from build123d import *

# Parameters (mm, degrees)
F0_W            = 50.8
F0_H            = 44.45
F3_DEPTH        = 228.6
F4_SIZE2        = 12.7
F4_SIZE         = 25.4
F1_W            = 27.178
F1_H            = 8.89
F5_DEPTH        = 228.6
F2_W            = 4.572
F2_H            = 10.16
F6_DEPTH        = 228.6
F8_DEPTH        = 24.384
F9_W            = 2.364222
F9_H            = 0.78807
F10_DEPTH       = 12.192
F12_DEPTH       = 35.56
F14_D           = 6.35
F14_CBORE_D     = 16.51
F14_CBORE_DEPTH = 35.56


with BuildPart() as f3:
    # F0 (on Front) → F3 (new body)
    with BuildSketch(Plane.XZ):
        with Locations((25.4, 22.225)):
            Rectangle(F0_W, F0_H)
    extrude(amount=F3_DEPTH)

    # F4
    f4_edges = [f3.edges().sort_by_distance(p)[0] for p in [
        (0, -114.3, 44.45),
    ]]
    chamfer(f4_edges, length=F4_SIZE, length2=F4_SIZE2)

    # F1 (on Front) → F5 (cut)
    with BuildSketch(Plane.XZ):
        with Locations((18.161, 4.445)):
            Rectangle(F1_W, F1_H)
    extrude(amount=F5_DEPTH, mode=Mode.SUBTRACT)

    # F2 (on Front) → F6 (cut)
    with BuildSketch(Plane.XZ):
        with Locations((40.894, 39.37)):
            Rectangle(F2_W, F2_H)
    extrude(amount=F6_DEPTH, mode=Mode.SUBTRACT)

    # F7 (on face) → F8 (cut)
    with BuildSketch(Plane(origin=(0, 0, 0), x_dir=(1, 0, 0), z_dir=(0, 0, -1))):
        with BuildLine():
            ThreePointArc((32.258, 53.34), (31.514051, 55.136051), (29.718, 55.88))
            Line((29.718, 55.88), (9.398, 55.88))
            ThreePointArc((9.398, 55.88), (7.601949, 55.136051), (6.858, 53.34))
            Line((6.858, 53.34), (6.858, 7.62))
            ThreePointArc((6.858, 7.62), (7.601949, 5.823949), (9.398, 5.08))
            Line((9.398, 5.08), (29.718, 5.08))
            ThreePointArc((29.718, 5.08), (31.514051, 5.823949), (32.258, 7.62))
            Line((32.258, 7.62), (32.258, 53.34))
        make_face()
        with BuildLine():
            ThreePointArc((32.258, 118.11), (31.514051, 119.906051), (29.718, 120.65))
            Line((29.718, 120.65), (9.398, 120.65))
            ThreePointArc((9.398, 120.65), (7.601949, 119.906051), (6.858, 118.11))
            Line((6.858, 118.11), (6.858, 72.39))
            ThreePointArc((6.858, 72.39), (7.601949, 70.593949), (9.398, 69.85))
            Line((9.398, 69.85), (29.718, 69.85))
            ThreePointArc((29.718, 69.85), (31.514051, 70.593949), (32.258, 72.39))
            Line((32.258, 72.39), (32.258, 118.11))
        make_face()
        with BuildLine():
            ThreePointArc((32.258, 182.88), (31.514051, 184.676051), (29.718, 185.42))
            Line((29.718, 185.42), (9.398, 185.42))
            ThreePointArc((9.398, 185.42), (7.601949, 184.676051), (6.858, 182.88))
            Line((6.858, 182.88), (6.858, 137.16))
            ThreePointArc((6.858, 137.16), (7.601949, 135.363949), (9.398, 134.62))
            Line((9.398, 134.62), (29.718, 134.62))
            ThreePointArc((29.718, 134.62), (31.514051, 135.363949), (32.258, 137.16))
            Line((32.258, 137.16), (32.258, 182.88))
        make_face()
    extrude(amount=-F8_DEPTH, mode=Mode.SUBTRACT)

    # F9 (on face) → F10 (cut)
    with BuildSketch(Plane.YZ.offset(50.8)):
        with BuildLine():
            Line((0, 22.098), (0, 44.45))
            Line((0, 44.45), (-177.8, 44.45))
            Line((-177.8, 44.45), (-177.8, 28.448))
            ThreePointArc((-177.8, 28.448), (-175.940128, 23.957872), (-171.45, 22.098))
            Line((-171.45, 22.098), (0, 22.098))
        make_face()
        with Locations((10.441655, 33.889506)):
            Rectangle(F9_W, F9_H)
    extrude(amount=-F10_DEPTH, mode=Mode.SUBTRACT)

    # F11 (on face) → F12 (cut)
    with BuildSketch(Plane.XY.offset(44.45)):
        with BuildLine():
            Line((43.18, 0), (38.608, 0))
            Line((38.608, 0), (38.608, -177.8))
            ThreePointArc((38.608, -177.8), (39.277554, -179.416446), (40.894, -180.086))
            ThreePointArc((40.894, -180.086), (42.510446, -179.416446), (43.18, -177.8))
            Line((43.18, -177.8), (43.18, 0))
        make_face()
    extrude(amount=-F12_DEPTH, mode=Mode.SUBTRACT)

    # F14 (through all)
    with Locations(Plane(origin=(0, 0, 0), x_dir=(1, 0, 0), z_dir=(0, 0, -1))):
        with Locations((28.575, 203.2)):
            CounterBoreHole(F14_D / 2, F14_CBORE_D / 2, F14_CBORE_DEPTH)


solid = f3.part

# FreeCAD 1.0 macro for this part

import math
import FreeCAD as App
import Part
import Sketcher
from FreeCAD import Vector
Q = App.Units.Quantity


def edges_at(feature, points):
    """Names of the edges that pass closest to the given points."""
    edges = feature.Shape.Edges
    near = lambda p: min(range(len(edges)), key=lambda i: edges[i].distToShape(Part.Vertex(*p))[0])
    return sorted({f"Edge{near(p) + 1}" for p in points})


def add_polygon(sketch, points):
    """Adds a closed chain of lines whose ends are joined by coincident constraints."""
    first, n = sketch.GeometryCount, len(points)
    for a, b in zip(points, points[1:] + points[:1]):
        sketch.addGeometry(Part.LineSegment(App.Vector(*a, 0), App.Vector(*b, 0)), False)
    for i in range(n):
        sketch.addConstraint(Sketcher.Constraint("Coincident", first + i, 2, first + (i + 1) % n, 1))

doc = App.newDocument("Part")
body = doc.addObject("PartDesign::Body", "Body")

# Sketch on XZ plane
sketch1 = body.newObject("Sketcher::SketchObject", "Sketch")
sketch1.AttachmentSupport = (doc.getObject("XZ_Plane"), [""])
sketch1.MapMode = "FlatFace"
add_polygon(sketch1, [(0, 44.45), (0, 0), (50.8, 0), (50.8, 44.45)])  # lines 0-3
sketch1.addConstraint([
    Sketcher.Constraint("Vertical", 0),
    Sketcher.Constraint("Horizontal", 1),
    Sketcher.Constraint("Vertical", 2),
    Sketcher.Constraint("Horizontal", 3),
    Sketcher.Constraint("Coincident", 0, 2, -1, 1),
    Sketcher.Constraint("DistanceX", 1, 1, 1, 2, Q("2 in")),
    Sketcher.Constraint("DistanceY", 0, 2, 0, 1, Q("1.75 in")),
])
pad1 = body.newObject("PartDesign::Pad", "Pad")
pad1.Profile = sketch1
pad1.Length = Q("9 in")
doc.recompute()

chamfer = body.newObject("PartDesign::Chamfer", "Chamfer")
chamfer.Base = (pad1, edges_at(pad1, [(0, -114.3, 44.45)]))
chamfer.ChamferType = "Two distances"
chamfer.Size = Q("1 in")
chamfer.Size2 = Q("0.5 in")

# Sketch on XZ plane
sketch2 = body.newObject("Sketcher::SketchObject", "Sketch001")
sketch2.AttachmentSupport = (doc.getObject("XZ_Plane"), [""])
sketch2.MapMode = "FlatFace"
add_polygon(sketch2, [(4.572, 8.89), (4.572, 0), (31.75, 0), (31.75, 8.89)])  # lines 0-3
sketch2.addConstraint([
    Sketcher.Constraint("Vertical", 0),
    Sketcher.Constraint("Horizontal", 1),
    Sketcher.Constraint("Vertical", 2),
    Sketcher.Constraint("Horizontal", 3),
    Sketcher.Constraint("PointOnObject", 0, 2, -1),
    Sketcher.Constraint("DistanceX", 1, 1, 1, 2, Q("1.07 in")),
    Sketcher.Constraint("DistanceY", 0, 2, 0, 1, Q("0.35 in")),
    Sketcher.Constraint("DistanceX", -1, 1, 0, 2, Q("0.18 in")),
])
pocket1 = body.newObject("PartDesign::Pocket", "Pocket")
pocket1.Profile = sketch2
pocket1.Length = Q("9 in")
pocket1.Reversed = True

# Sketch on XZ plane
sketch3 = body.newObject("Sketcher::SketchObject", "Sketch002")
sketch3.AttachmentSupport = (doc.getObject("XZ_Plane"), [""])
sketch3.MapMode = "FlatFace"
add_polygon(sketch3, [(38.608, 44.45), (38.608, 34.29), (43.18, 34.29), (43.18, 44.45)])  # lines 0-3
sketch3.addConstraint([
    Sketcher.Constraint("Vertical", 0),
    Sketcher.Constraint("Horizontal", 1),
    Sketcher.Constraint("Vertical", 2),
    Sketcher.Constraint("Horizontal", 3),
    Sketcher.Constraint("DistanceY", 0, 2, 0, 1, Q("0.4 in")),
    Sketcher.Constraint("DistanceX", 1, 1, 1, 2, Q("0.18 in")),
    Sketcher.Constraint("DistanceX", -1, 1, 1, 2, Q("1.7 in")),
    Sketcher.Constraint("DistanceY", -1, 1, 0, 2, Q("1.35 in")),
])
pocket2 = body.newObject("PartDesign::Pocket", "Pocket001")
pocket2.Profile = sketch3
pocket2.Length = Q("9 in")
pocket2.Reversed = True

# Sketch on XY plane
sketch4 = body.newObject("Sketcher::SketchObject", "Sketch003")
sketch4.AttachmentSupport = (doc.getObject("XY_Plane"), [""])
sketch4.MapMode = "FlatFace"
sketch4.addGeometry([
    Part.ArcOfCircle(Part.Circle(Vector(29.717999, -53.339999, 0), Vector(0, 0, 1), 2.540001), math.radians(-89.999983), math.radians(-0.000017)),  # 0
    Part.LineSegment(Vector(29.718, -55.88, 0), Vector(9.398, -55.88, 0)),  # 1
    Part.ArcOfCircle(Part.Circle(Vector(9.398001, -53.339999, 0), Vector(0, 0, 1), 2.540001), math.radians(-179.999983), math.radians(-90.000017)),  # 2
    Part.LineSegment(Vector(6.858, -53.34, 0), Vector(6.858, -7.62, 0)),  # 3
    Part.ArcOfCircle(Part.Circle(Vector(9.398001, -7.620001, 0), Vector(0, 0, 1), 2.540001), math.radians(90.000017), math.radians(179.999983)),  # 4
    Part.LineSegment(Vector(9.398, -5.08, 0), Vector(29.718, -5.08, 0)),  # 5
    Part.ArcOfCircle(Part.Circle(Vector(29.717999, -7.620001, 0), Vector(0, 0, 1), 2.540001), math.radians(0.000017), math.radians(89.999983)),  # 6
    Part.LineSegment(Vector(32.258, -7.62, 0), Vector(32.258, -53.34, 0)),  # 7
    Part.ArcOfCircle(Part.Circle(Vector(29.717999, -118.109999, 0), Vector(0, 0, 1), 2.540001), math.radians(-89.999983), math.radians(-0.000017)),  # 8
    Part.LineSegment(Vector(29.718, -120.65, 0), Vector(9.398, -120.65, 0)),  # 9
    Part.ArcOfCircle(Part.Circle(Vector(9.398001, -118.109999, 0), Vector(0, 0, 1), 2.540001), math.radians(-179.999983), math.radians(-90.000017)),  # 10
    Part.LineSegment(Vector(6.858, -118.11, 0), Vector(6.858, -72.39, 0)),  # 11
    Part.ArcOfCircle(Part.Circle(Vector(9.398001, -72.390001, 0), Vector(0, 0, 1), 2.540001), math.radians(90.000017), math.radians(179.999983)),  # 12
    Part.LineSegment(Vector(9.398, -69.85, 0), Vector(29.718, -69.85, 0)),  # 13
    Part.ArcOfCircle(Part.Circle(Vector(29.717999, -72.390001, 0), Vector(0, 0, 1), 2.540001), math.radians(0.000017), math.radians(89.999983)),  # 14
    Part.LineSegment(Vector(32.258, -72.39, 0), Vector(32.258, -118.11, 0)),  # 15
    Part.ArcOfCircle(Part.Circle(Vector(29.717999, -182.879999, 0), Vector(0, 0, 1), 2.540001), math.radians(-89.999983), math.radians(-0.000017)),  # 16
    Part.LineSegment(Vector(29.718, -185.42, 0), Vector(9.398, -185.42, 0)),  # 17
    Part.ArcOfCircle(Part.Circle(Vector(9.398001, -182.879999, 0), Vector(0, 0, 1), 2.540001), math.radians(-179.999983), math.radians(-90.000017)),  # 18
    Part.LineSegment(Vector(6.858, -182.88, 0), Vector(6.858, -137.16, 0)),  # 19
    Part.ArcOfCircle(Part.Circle(Vector(9.398001, -137.160001, 0), Vector(0, 0, 1), 2.540001), math.radians(90.000017), math.radians(179.999983)),  # 20
    Part.LineSegment(Vector(9.398, -134.62, 0), Vector(29.718, -134.62, 0)),  # 21
    Part.ArcOfCircle(Part.Circle(Vector(29.717999, -137.160001, 0), Vector(0, 0, 1), 2.540001), math.radians(0.000017), math.radians(89.999983)),  # 22
    Part.LineSegment(Vector(32.258, -137.16, 0), Vector(32.258, -182.88, 0)),  # 23
], False)
sketch4.addConstraint([
    Sketcher.Constraint("Tangent", 0, 1, 1, 1),
    Sketcher.Constraint("Tangent", 1, 2, 2, 2),
    Sketcher.Constraint("Tangent", 2, 1, 3, 1),
    Sketcher.Constraint("Tangent", 3, 2, 4, 2),
    Sketcher.Constraint("Tangent", 4, 1, 5, 1),
    Sketcher.Constraint("Tangent", 5, 2, 6, 2),
    Sketcher.Constraint("Tangent", 6, 1, 7, 1),
    Sketcher.Constraint("Tangent", 7, 2, 0, 2),
    Sketcher.Constraint("Tangent", 8, 1, 9, 1),
    Sketcher.Constraint("Tangent", 9, 2, 10, 2),
    Sketcher.Constraint("Tangent", 10, 1, 11, 1),
    Sketcher.Constraint("Tangent", 11, 2, 12, 2),
    Sketcher.Constraint("Tangent", 12, 1, 13, 1),
    Sketcher.Constraint("Tangent", 13, 2, 14, 2),
    Sketcher.Constraint("Tangent", 14, 1, 15, 1),
    Sketcher.Constraint("Tangent", 15, 2, 8, 2),
    Sketcher.Constraint("Tangent", 16, 1, 17, 1),
    Sketcher.Constraint("Tangent", 17, 2, 18, 2),
    Sketcher.Constraint("Tangent", 18, 1, 19, 1),
    Sketcher.Constraint("Tangent", 19, 2, 20, 2),
    Sketcher.Constraint("Tangent", 20, 1, 21, 1),
    Sketcher.Constraint("Tangent", 21, 2, 22, 2),
    Sketcher.Constraint("Tangent", 22, 1, 23, 1),
    Sketcher.Constraint("Tangent", 23, 2, 16, 2),
    Sketcher.Constraint("Horizontal", 1),
    Sketcher.Constraint("Vertical", 3),
    Sketcher.Constraint("Horizontal", 5),
    Sketcher.Constraint("Vertical", 7),
    Sketcher.Constraint("Horizontal", 9),
    Sketcher.Constraint("Vertical", 11),
    Sketcher.Constraint("Horizontal", 13),
    Sketcher.Constraint("Vertical", 15),
    Sketcher.Constraint("Horizontal", 17),
    Sketcher.Constraint("Vertical", 19),
    Sketcher.Constraint("Horizontal", 21),
    Sketcher.Constraint("Vertical", 23),
    Sketcher.Constraint("Equal", 0, 2),
    Sketcher.Constraint("Equal", 2, 4),
    Sketcher.Constraint("Equal", 4, 6),
    Sketcher.Constraint("Equal", 6, 8),
    Sketcher.Constraint("Equal", 8, 10),
    Sketcher.Constraint("Equal", 10, 12),
    Sketcher.Constraint("Equal", 12, 14),
    Sketcher.Constraint("Equal", 14, 16),
    Sketcher.Constraint("Equal", 16, 18),
    Sketcher.Constraint("Equal", 18, 20),
    Sketcher.Constraint("Equal", 20, 22),
    Sketcher.Constraint("Vertical", 6, 3, 8, 3),
    Sketcher.Constraint("Vertical", 4, 3, 10, 3),
    Sketcher.Constraint("Vertical", 14, 3, 16, 3),
    Sketcher.Constraint("Vertical", 12, 3, 18, 3),
    Sketcher.Constraint("Equal", 7, 11),
    Sketcher.Constraint("Equal", 15, 19),
    Sketcher.Constraint("Radius", 0, Q("0.1 in")),
    Sketcher.Constraint("DistanceX", 1, 2, 1, 1, Q("0.8 in")),
    Sketcher.Constraint("DistanceY", 3, 1, 3, 2, Q("1.8 in")),
    Sketcher.Constraint("DistanceY", 0, 3, -1, 1, Q("2.1 in")),
    Sketcher.Constraint("DistanceY", 16, 3, -1, 1, Q("7.2 in")),
    Sketcher.Constraint("DistanceX", -1, 1, 0, 3, Q("1.17 in")),
    Sketcher.Constraint("DistanceY", 8, 3, -1, 1, Q("4.65 in")),
])
pocket3 = body.newObject("PartDesign::Pocket", "Pocket002")
pocket3.Profile = sketch4
pocket3.Length = Q("0.96 in")
pocket3.Reversed = True

# Sketch on YZ plane
sketch5 = body.newObject("Sketcher::SketchObject", "Sketch004")
sketch5.AttachmentSupport = (doc.getObject("YZ_Plane"), [""])
sketch5.MapMode = "FlatFace"
sketch5.AttachmentOffset = App.Placement(Vector(0, 0, 2 * 25.4), App.Rotation())
sketch5.addGeometry(Part.LineSegment(Vector(0, 22.098, 0), Vector(0, 44.45, 0)), False)  # 0
sketch5.addGeometry(Part.LineSegment(Vector(0, 44.45, 0), Vector(-177.8, 44.45, 0)), False)  # 1
sketch5.addGeometry(Part.LineSegment(Vector(-177.8, 44.45, 0), Vector(-177.8, 28.448, 0)), False)  # 2
sketch5.addGeometry(Part.ArcOfCircle(Part.Circle(Vector(-171.45, 28.448, 0), Vector(0, 0, 1), 6.35), math.radians(-179.999998), math.radians(-90.000002)), False)  # 3
sketch5.addGeometry(Part.LineSegment(Vector(-171.45, 22.098, 0), Vector(0, 22.098, 0)), False)  # 4
add_polygon(sketch5, [(9.259544, 34.283541), (9.259544, 33.495471), (11.623766, 33.495471), (11.623766, 34.283541)])  # lines 5-8
sketch5.addConstraint([
    Sketcher.Constraint("Coincident", 0, 2, 1, 1),
    Sketcher.Constraint("Coincident", 1, 2, 2, 1),
    Sketcher.Constraint("Tangent", 2, 2, 3, 1),
    Sketcher.Constraint("Tangent", 3, 2, 4, 1),
    Sketcher.Constraint("Coincident", 4, 2, 0, 1),
    Sketcher.Constraint("Vertical", 0),
    Sketcher.Constraint("Horizontal", 1),
    Sketcher.Constraint("Vertical", 2),
    Sketcher.Constraint("Horizontal", 4),
    Sketcher.Constraint("Vertical", 5),
    Sketcher.Constraint("Horizontal", 6),
    Sketcher.Constraint("Vertical", 7),
    Sketcher.Constraint("Horizontal", 8),
    Sketcher.Constraint("PointOnObject", 0, 2, -2),
    Sketcher.Constraint("DistanceX", 1, 2, 1, 1, Q("7 in")),
    Sketcher.Constraint("Radius", 3, Q("0.25 in")),
    Sketcher.Constraint("DistanceY", 0, 1, 0, 2, Q("0.88 in")),
    Sketcher.Constraint("DistanceY", -1, 1, 3, 3, Q("1.12 in")),
    Sketcher.Constraint("DistanceX", 6, 1, 6, 2, Q("2.364222 mm")),
    Sketcher.Constraint("DistanceY", 5, 2, 5, 1, Q("0.78807 mm")),
    Sketcher.Constraint("DistanceY", -1, 1, 5, 2, Q("33.495471 mm")),
    Sketcher.Constraint("DistanceX", -1, 1, 5, 2, Q("9.259544 mm")),
])
pocket4 = body.newObject("PartDesign::Pocket", "Pocket003")
pocket4.Profile = sketch5
pocket4.Length = Q("0.48 in")

# Sketch on XY plane
sketch6 = body.newObject("Sketcher::SketchObject", "Sketch005")
sketch6.AttachmentSupport = (doc.getObject("XY_Plane"), [""])
sketch6.MapMode = "FlatFace"
sketch6.AttachmentOffset = App.Placement(Vector(0, 0, 1.75 * 25.4), App.Rotation())
sketch6.addGeometry([
    Part.LineSegment(Vector(43.18, 0, 0), Vector(38.608, 0, 0)),  # 0
    Part.LineSegment(Vector(38.608, 0, 0), Vector(38.608, -177.8, 0)),  # 1
    Part.ArcOfCircle(Part.Circle(Vector(40.894, -177.8, 0), Vector(0, 0, 1), 2.286), math.radians(-179.999991), math.radians(-90.000009)),  # 2
    Part.ArcOfCircle(Part.Circle(Vector(40.894, -177.8, 0), Vector(0, 0, 1), 2.286), math.radians(-89.999991), math.radians(-0.000009)),  # 3
    Part.LineSegment(Vector(43.18, -177.8, 0), Vector(43.18, 0, 0)),  # 4
], False)
sketch6.addConstraint([
    Sketcher.Constraint("Coincident", 0, 2, 1, 1),
    Sketcher.Constraint("Tangent", 1, 2, 2, 1),
    Sketcher.Constraint("Tangent", 2, 2, 3, 1),
    Sketcher.Constraint("Tangent", 3, 2, 4, 1),
    Sketcher.Constraint("Coincident", 4, 2, 0, 1),
    Sketcher.Constraint("Horizontal", 0),
    Sketcher.Constraint("Vertical", 1),
    Sketcher.Constraint("Vertical", 4),
    Sketcher.Constraint("Equal", 2, 3),
    Sketcher.Constraint("PointOnObject", 0, 2, -1),
    Sketcher.Constraint("Vertical", 3, 3, 2, 2),
    Sketcher.Constraint("DistanceY", 1, 2, 1, 1, Q("7 in")),
    Sketcher.Constraint("Radius", 2, Q("0.09 in")),
    Sketcher.Constraint("DistanceX", -1, 1, 3, 2, Q("1.7 in")),
])
pocket5 = body.newObject("PartDesign::Pocket", "Pocket004")
pocket5.Profile = sketch6
pocket5.Length = Q("1.4 in")

# Sketch on XY plane
sketch7 = body.newObject("Sketcher::SketchObject", "Sketch006")
sketch7.AttachmentSupport = (doc.getObject("XY_Plane"), [""])
sketch7.MapMode = "FlatFace"
sketch7.addGeometry(Part.Circle(Vector(28.575, -203.2, 0), Vector(0, 0, 1), 3.175), False)
sketch7.addConstraint([
    Sketcher.Constraint("Diameter", 0, Q("0.25 in")),
    Sketcher.Constraint("DistanceY", 0, 3, -1, 1, Q("8 in")),
    Sketcher.Constraint("DistanceX", -1, 1, 0, 3, Q("1.125 in")),
])
doc.recompute()
hole = body.newObject("PartDesign::Hole", "Hole")
hole.Profile = sketch7
hole.ThreadType = "None"
hole.Diameter = Q("0.25 in")
hole.DepthType = "ThroughAll"
hole.HoleCutType = "Counterbore"
hole.HoleCutDiameter = Q("0.65 in")
hole.HoleCutDepth = Q("1.4 in")
hole.Reversed = True

doc.recompute()
